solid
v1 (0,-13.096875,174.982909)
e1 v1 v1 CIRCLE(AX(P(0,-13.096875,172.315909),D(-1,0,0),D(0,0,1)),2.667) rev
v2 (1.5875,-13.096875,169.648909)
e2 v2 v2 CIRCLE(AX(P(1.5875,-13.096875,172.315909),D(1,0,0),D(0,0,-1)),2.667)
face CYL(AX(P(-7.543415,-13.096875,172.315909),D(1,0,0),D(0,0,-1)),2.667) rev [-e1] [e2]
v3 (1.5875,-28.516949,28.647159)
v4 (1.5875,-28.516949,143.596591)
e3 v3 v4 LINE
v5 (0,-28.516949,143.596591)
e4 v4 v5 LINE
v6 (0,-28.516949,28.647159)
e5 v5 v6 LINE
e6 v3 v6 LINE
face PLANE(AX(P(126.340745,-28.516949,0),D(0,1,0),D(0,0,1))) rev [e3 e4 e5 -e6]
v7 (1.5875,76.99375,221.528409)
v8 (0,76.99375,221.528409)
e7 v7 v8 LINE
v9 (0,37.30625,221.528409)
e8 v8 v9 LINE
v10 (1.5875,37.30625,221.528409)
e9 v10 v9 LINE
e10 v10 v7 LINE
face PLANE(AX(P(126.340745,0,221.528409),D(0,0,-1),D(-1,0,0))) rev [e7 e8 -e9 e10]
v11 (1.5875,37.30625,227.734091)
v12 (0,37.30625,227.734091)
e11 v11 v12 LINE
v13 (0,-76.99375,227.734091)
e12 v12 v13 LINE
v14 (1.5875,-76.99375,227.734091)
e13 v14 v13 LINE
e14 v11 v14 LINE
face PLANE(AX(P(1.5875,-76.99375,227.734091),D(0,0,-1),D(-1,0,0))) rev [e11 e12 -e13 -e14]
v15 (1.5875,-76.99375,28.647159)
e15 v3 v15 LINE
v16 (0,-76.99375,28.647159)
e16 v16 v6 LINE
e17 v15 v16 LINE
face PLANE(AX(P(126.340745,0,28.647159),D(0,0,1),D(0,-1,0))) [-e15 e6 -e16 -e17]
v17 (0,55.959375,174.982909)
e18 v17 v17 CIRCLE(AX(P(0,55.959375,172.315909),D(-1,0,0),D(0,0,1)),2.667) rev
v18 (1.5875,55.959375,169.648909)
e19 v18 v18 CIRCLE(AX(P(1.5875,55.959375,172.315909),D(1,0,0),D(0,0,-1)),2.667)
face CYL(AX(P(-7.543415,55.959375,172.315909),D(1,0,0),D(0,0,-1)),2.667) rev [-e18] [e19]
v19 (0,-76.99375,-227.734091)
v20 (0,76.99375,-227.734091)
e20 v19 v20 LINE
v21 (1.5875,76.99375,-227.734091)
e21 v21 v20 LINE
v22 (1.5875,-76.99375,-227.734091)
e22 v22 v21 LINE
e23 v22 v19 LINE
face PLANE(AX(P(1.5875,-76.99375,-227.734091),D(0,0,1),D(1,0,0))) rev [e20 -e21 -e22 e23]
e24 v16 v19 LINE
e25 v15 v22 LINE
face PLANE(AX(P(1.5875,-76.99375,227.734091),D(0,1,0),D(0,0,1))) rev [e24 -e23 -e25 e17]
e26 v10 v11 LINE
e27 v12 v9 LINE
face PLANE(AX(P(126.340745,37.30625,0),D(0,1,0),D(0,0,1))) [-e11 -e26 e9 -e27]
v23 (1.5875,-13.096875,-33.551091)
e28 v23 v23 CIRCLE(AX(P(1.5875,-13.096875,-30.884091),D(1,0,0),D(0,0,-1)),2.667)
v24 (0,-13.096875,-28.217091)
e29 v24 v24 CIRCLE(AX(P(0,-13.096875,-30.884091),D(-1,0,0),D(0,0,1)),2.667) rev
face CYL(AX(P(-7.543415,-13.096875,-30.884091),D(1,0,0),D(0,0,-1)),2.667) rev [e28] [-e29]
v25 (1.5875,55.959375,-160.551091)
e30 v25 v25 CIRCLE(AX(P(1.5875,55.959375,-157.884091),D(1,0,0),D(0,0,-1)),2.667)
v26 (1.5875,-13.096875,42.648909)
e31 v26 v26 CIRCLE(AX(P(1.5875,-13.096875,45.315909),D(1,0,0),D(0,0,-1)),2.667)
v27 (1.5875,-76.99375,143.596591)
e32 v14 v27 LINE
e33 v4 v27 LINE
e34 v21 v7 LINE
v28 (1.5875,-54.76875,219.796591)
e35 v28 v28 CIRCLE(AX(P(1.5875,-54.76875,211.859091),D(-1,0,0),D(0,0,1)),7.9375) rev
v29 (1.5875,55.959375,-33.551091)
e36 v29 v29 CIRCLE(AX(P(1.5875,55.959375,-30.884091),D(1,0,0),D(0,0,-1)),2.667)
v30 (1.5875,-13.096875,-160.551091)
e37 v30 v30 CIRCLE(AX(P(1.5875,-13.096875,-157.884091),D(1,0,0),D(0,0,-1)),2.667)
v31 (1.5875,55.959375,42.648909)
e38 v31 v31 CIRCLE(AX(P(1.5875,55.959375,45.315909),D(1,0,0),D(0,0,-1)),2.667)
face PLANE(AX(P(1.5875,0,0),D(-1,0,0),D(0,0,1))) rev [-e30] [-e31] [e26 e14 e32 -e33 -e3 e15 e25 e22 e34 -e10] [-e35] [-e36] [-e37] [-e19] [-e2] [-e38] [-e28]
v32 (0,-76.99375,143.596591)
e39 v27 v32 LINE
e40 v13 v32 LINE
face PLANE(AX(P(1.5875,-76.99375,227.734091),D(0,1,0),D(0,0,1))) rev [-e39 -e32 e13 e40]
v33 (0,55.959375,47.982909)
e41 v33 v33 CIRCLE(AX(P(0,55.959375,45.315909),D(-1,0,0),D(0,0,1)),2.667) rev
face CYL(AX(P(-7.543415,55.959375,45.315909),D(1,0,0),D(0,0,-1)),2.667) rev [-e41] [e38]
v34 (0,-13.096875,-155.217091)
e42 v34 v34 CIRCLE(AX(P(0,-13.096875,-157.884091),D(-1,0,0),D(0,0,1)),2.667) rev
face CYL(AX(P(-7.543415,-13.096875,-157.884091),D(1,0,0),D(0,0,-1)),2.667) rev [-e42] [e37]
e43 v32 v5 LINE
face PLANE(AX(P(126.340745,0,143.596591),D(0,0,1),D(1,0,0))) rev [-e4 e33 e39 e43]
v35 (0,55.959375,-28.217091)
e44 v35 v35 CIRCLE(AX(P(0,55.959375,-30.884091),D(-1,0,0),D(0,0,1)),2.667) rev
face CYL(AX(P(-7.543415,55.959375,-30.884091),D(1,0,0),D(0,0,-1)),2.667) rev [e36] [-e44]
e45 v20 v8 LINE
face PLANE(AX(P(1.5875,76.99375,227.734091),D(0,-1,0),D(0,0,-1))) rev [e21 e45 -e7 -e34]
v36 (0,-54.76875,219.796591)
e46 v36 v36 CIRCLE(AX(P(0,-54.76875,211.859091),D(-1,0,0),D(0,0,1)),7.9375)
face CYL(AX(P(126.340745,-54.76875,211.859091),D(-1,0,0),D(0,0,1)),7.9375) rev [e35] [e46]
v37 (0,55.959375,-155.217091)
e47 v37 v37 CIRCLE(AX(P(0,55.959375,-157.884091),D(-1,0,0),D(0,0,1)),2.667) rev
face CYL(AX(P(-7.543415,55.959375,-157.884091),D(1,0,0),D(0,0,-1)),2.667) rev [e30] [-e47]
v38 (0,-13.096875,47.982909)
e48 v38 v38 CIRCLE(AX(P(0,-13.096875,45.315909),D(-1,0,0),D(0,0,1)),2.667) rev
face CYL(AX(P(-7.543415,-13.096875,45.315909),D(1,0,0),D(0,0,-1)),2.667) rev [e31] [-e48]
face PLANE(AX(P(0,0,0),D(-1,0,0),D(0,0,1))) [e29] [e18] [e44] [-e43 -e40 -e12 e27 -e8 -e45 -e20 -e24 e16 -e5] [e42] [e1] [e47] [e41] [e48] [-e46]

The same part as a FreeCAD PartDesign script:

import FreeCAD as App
import Part
import Sketcher
from FreeCAD import Vector
Q = App.Units.Quantity


def add_polygon(sketch, points):
    """Adds a closed chain of lines whose ends are joined by coincident constraints."""
    first, n = sketch.GeometryCount, len(points)
    for a, b in zip(points, points[1:] + points[:1]):
        sketch.addGeometry(Part.LineSegment(App.Vector(*a, 0), App.Vector(*b, 0)), False)
    for i in range(n):
        sketch.addConstraint(Sketcher.Constraint("Coincident", first + i, 2, first + (i + 1) % n, 1))

doc = App.newDocument("Part")
params = doc.addObject("Spreadsheet::Sheet", "Params")
for row, (alias, value) in enumerate([
    ("sketch1_width", "6.0625 in"),
    ("pad1_length", "0.0625 in"),
    ("sketch2_diameter", "0.625 in"),
    ("sketch2_width", "1.5625 in"),
    ("pocket1_length", "0.0625 in"),
    ("sketch3_diameter", "0.21 in"),
    ("pocket2_length", "0.0625 in"),
], start=1):
    params.set(f"A{row}", alias)
    params.set(f"B{row}", "=" + value)
    params.setAlias(f"B{row}", alias)

body = doc.addObject("PartDesign::Body", "Body")

sketch1 = doc.addObject("Sketcher::SketchObject", "Sketch")
body.addObject(sketch1)
sketch1.AttachmentSupport = (doc.YZ_Plane, [""])
sketch1.MapMode = "FlatFace"
add_polygon(sketch1, [(77, 228), (-77, 228), (-77, -228), (77, -228)])
sketch1.addConstraint([
    Sketcher.Constraint("Horizontal", 0),
    Sketcher.Constraint("Vertical", 1),
    Sketcher.Constraint("Horizontal", 2),
    Sketcher.Constraint("Vertical", 3),
    Sketcher.Constraint("Symmetric", 0, 2, 2, 2, -1, 1),
    Sketcher.Constraint("DistanceX", 0, 2, 0, 1, Q("6.0625 in")),
    Sketcher.Constraint("DistanceY", 1, 2, 1, 1, 455.468182),
])
sketch1.setExpression("Constraints[9]", "Params.sketch1_width")
pad1 = doc.addObject("PartDesign::Pad", "Pad")
body.addObject(pad1)
pad1.Profile = sketch1
pad1.setExpression("Length", "Params.pad1_length")

sketch2 = doc.addObject("Sketcher::SketchObject", "Sketch001")
body.addObject(sketch2)
sketch2.AttachmentSupport = (doc.YZ_Plane, [""])
sketch2.MapMode = "FlatFace"
sketch2.addGeometry(Part.Circle(Vector(-55, 212, 0), Vector(0, 0, 1), 8), False)
add_polygon(sketch2, [(77, 222), (37, 222), (37, 228), (77, 228)])
add_polygon(sketch2, [(-29, 29), (-77, 29), (-77, 144), (-29, 144)])
sketch2.addConstraint([
    Sketcher.Constraint("Horizontal", 1),
    Sketcher.Constraint("Vertical", 2),
    Sketcher.Constraint("Horizontal", 3),
    Sketcher.Constraint("Vertical", 4),
    Sketcher.Constraint("Horizontal", 5),
    Sketcher.Constraint("Vertical", 6),
    Sketcher.Constraint("Horizontal", 7),
    Sketcher.Constraint("Vertical", 8),
    Sketcher.Constraint("Diameter", 0, Q("0.625 in")),
    Sketcher.Constraint("DistanceX", 5, 2, 1, 2, Q("4.5 in")),
    Sketcher.Constraint("DistanceX", 1, 2, 1, 1, Q("1.5625 in")),
    Sketcher.Constraint("DistanceX", 0, 3, -1, 1, Q("2.15625 in")),
    Sketcher.Constraint("DistanceX", -1, 1, 1, 2, Q("1.46875 in")),
    Sketcher.Constraint("DistanceY", 0, 3, 2, 2, Q("0.625 in")),
    Sketcher.Constraint("DistanceY", 5, 2, 1, 2, Q("7.59375 in")),
    Sketcher.Constraint("DistanceY", 6, 2, 0, 3, Q("2.6875 in")),
    Sketcher.Constraint("DistanceX", 5, 2, 5, 1, 48.476801),
    Sketcher.Constraint("DistanceY", 2, 1, 2, 2, 6.205682),
    Sketcher.Constraint("DistanceY", -1, 1, 0, 3, 211.859091),
])
sketch2.setExpression("Constraints[16]", "Params.sketch2_diameter")
sketch2.setExpression("Constraints[18]", "Params.sketch2_width")
pocket1 = doc.addObject("PartDesign::Pocket", "Pocket")
body.addObject(pocket1)
pocket1.Profile = sketch2
pocket1.setExpression("Length", "Params.pocket1_length")
pocket1.Reversed = True

sketch3 = doc.addObject("Sketcher::SketchObject", "Sketch002")
body.addObject(sketch3)
sketch3.AttachmentSupport = (doc.YZ_Plane, [""])
sketch3.MapMode = "FlatFace"
sketch3.AttachmentOffset = App.Placement(Vector(0, 0, 0.0625 * 25.4), App.Rotation())
sketch3.addGeometry([
    Part.Circle(Vector(56, -157.9, 0), Vector(0, 0, 1), 2.7),
    Part.Circle(Vector(-13.1, -157.9, 0), Vector(0, 0, 1), 2.7),
    Part.Circle(Vector(-13.1, -30.9, 0), Vector(0, 0, 1), 2.7),
    Part.Circle(Vector(-13.1, 45.3, 0), Vector(0, 0, 1), 2.7),
    Part.Circle(Vector(-13.1, 172.3, 0), Vector(0, 0, 1), 2.7),
    Part.Circle(Vector(56, 172.3, 0), Vector(0, 0, 1), 2.7),
    Part.Circle(Vector(56, 45.3, 0), Vector(0, 0, 1), 2.7),
    Part.Circle(Vector(56, -30.9, 0), Vector(0, 0, 1), 2.7),
], False)
sketch3.addConstraint([
    Sketcher.Constraint("Equal", 0, 1),
    Sketcher.Constraint("Equal", 1, 2),
    Sketcher.Constraint("Equal", 2, 3),
    Sketcher.Constraint("Equal", 3, 4),
    Sketcher.Constraint("Equal", 4, 5),
    Sketcher.Constraint("Equal", 5, 6),
    Sketcher.Constraint("Equal", 6, 7),
    Sketcher.Constraint("Horizontal", 0, 3, 1, 3),
    Sketcher.Constraint("Horizontal", 4, 3, 5, 3),
    Sketcher.Constraint("Horizontal", 3, 3, 6, 3),
    Sketcher.Constraint("Horizontal", 2, 3, 7, 3),
    Sketcher.Constraint("Vertical", 1, 3, 2, 3),
    Sketcher.Constraint("Vertical", 2, 3, 3, 3),
    Sketcher.Constraint("Vertical", 3, 3, 4, 3),
    Sketcher.Constraint("Vertical", 0, 3, 5, 3),
    Sketcher.Constraint("Vertical", 5, 3, 6, 3),
    Sketcher.Constraint("Vertical", 6, 3, 7, 3),
    Sketcher.Constraint("Diameter", 0, Q("0.21 in")),
    Sketcher.Constraint("DistanceY", 1, 3, 2, 3, Q("5 in")),
    Sketcher.Constraint("DistanceY", 2, 3, 3, 3, Q("3 in")),
    Sketcher.Constraint("DistanceY", 3, 3, 4, 3, Q("5 in")),
    Sketcher.Constraint("DistanceX", -1, 1, 0, 3, Q("2.203125 in")),
    Sketcher.Constraint("DistanceX", 1, 3, -1, 1, Q("0.515625 in")),
    Sketcher.Constraint("DistanceY", 0, 3, -1, 1, 157.884091),
])
sketch3.setExpression("Constraints[17]", "Params.sketch3_diameter")
pocket2 = doc.addObject("PartDesign::Pocket", "Pocket001")
body.addObject(pocket2)
pocket2.Profile = sketch3
pocket2.setExpression("Length", "Params.pocket2_length")

doc.recompute()
